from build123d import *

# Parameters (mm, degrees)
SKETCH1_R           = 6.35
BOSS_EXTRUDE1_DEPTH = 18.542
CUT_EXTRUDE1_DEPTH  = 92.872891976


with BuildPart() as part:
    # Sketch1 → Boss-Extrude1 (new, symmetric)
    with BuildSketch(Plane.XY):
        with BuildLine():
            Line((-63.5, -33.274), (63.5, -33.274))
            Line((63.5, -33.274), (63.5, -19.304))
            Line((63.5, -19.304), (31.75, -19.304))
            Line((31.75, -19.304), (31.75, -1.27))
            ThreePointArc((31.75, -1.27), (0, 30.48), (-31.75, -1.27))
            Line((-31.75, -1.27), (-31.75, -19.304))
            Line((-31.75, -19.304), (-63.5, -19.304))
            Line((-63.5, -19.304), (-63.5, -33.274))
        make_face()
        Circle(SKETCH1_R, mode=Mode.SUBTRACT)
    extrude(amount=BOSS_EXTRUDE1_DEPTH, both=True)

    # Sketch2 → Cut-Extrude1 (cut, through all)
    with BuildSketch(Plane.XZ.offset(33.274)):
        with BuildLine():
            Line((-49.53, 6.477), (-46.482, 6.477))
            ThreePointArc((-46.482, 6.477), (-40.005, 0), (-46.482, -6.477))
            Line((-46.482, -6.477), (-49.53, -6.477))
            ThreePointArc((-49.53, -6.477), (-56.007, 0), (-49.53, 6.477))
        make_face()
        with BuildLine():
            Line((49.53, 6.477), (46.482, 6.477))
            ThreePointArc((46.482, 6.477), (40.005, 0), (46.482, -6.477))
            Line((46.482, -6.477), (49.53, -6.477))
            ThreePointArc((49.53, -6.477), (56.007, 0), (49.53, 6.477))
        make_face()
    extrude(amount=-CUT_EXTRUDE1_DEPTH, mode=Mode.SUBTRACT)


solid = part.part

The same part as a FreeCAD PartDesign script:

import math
import FreeCAD as App
import Part
import Sketcher

V = App.Vector
Q = App.Units.Quantity

doc = App.newDocument("Part")
body = doc.addObject("PartDesign::Body", "Body")

sketch1 = body.newObject("Sketcher::SketchObject", "Sketch")
sketch1.AttachmentSupport = (doc.getObject("XY_Plane"), [""])
sketch1.MapMode = "FlatFace"
sketch1.addGeometry([
    Part.LineSegment(V(-64, -33, 0), V(64, -33, 0)),
    Part.LineSegment(V(64, -33, 0), V(64, -19, 0)),
    Part.LineSegment(V(64, -19, 0), V(32, -19, 0)),
    Part.LineSegment(V(32, -19, 0), V(32, -1, 0)),
    Part.ArcOfCircle(Part.Circle(V(0, -1, 0), V(0, 0, 1), 32), math.radians(0), math.radians(180)),
    Part.LineSegment(V(-32, -1, 0), V(-32, -19, 0)),
    Part.LineSegment(V(-32, -19, 0), V(-64, -19, 0)),
    Part.LineSegment(V(-64, -19, 0), V(-64, -33, 0)),
    Part.Circle(V(0, 0, 0), V(0, 0, 1), 6),
], False)
sketch1.addConstraint([
    Sketcher.Constraint("Coincident", 0, 2, 1, 1),
    Sketcher.Constraint("Coincident", 1, 2, 2, 1),
    Sketcher.Constraint("Coincident", 2, 2, 3, 1),
    Sketcher.Constraint("Tangent", 3, 2, 4, 1),
    Sketcher.Constraint("Tangent", 4, 2, 5, 1),
    Sketcher.Constraint("Coincident", 5, 2, 6, 1),
    Sketcher.Constraint("Coincident", 6, 2, 7, 1),
    Sketcher.Constraint("Coincident", 7, 2, 0, 1),
    Sketcher.Constraint("Horizontal", 0),
    Sketcher.Constraint("Vertical", 1),
    Sketcher.Constraint("Horizontal", 2),
    Sketcher.Constraint("Vertical", 3),
    Sketcher.Constraint("Vertical", 5),
    Sketcher.Constraint("Horizontal", 6),
    Sketcher.Constraint("Vertical", 7),
    Sketcher.Constraint("Coincident", 8, 3, -1, 1),
    Sketcher.Constraint("Symmetric", 2, 2, 5, 2, -2),
    Sketcher.Constraint("Equal", 2, 6),
    Sketcher.Constraint("Diameter", 8, Q("0.5 in")),
    Sketcher.Constraint("DistanceX", 0, 1, 0, 2, Q("5 in")),
    Sketcher.Constraint("Radius", 4, Q("1.25 in")),
    Sketcher.Constraint("DistanceY", 1, 1, 1, 2, Q("0.55 in")),
    Sketcher.Constraint("DistanceY", 3, 1, 3, 2, Q("0.71 in")),
    Sketcher.Constraint("DistanceY", 4, 3, -1, 1, Q("0.05 in")),
])
pad1 = body.newObject("PartDesign::Pad", "Pad")
pad1.Profile = sketch1
pad1.Length = Q("1.46 in")
pad1.Midplane = True

sketch2 = body.newObject("Sketcher::SketchObject", "Sketch001")
sketch2.AttachmentSupport = (doc.getObject("XZ_Plane"), [""])
sketch2.MapMode = "FlatFace"
sketch2.AttachmentOffset = App.Placement(V(0, 0, 1.31 * 25.4), App.Rotation())
sketch2.addGeometry([
    Part.LineSegment(V(-46.5, 6.5, 0), V(-49.5, 6.5, 0)),
    Part.ArcOfCircle(Part.Circle(V(-49.5, 0, 0), V(0, 0, 1), 6.5), math.radians(90), math.radians(270)),
    Part.LineSegment(V(-49.5, -6.5, 0), V(-46.5, -6.5, 0)),
    Part.ArcOfCircle(Part.Circle(V(-46.5, 0, 0), V(0, 0, 1), 6.5), math.radians(-90), math.radians(90)),
    Part.LineSegment(V(49.5, 6.5, 0), V(46.5, 6.5, 0)),
    Part.ArcOfCircle(Part.Circle(V(46.5, 0, 0), V(0, 0, 1), 6.5), math.radians(90), math.radians(270)),
    Part.LineSegment(V(46.5, -6.5, 0), V(49.5, -6.5, 0)),
    Part.ArcOfCircle(Part.Circle(V(49.5, 0, 0), V(0, 0, 1), 6.5), math.radians(-90), math.radians(90)),
], False)
sketch2.addConstraint([
    Sketcher.Constraint("Tangent", 0, 2, 1, 1),
    Sketcher.Constraint("Tangent", 1, 2, 2, 1),
    Sketcher.Constraint("Tangent", 2, 2, 3, 1),
    Sketcher.Constraint("Tangent", 3, 2, 0, 1),
    Sketcher.Constraint("Tangent", 4, 2, 5, 1),
    Sketcher.Constraint("Tangent", 5, 2, 6, 1),
    Sketcher.Constraint("Tangent", 6, 2, 7, 1),
    Sketcher.Constraint("Tangent", 7, 2, 4, 1),
    Sketcher.Constraint("Horizontal", 0),
    Sketcher.Constraint("Horizontal", 2),
    Sketcher.Constraint("Horizontal", 4),
    Sketcher.Constraint("Horizontal", 6),
    Sketcher.Constraint("Equal", 3, 5),
    Sketcher.Constraint("Symmetric", 3, 3, 5, 3, -1, 1),
    Sketcher.Constraint("Symmetric", 1, 3, 7, 3, -2),
    Sketcher.Constraint("Radius", 1, Q("0.255 in")),
    Sketcher.Constraint("DistanceX", 0, 2, 0, 1, Q("0.12 in")),
    Sketcher.Constraint("DistanceX", 1, 3, 7, 3, Q("3.9 in")),
])
pocket1 = body.newObject("PartDesign::Pocket", "Pocket")
pocket1.Profile = sketch2
pocket1.Type = "ThroughAll"

doc.recompute()
